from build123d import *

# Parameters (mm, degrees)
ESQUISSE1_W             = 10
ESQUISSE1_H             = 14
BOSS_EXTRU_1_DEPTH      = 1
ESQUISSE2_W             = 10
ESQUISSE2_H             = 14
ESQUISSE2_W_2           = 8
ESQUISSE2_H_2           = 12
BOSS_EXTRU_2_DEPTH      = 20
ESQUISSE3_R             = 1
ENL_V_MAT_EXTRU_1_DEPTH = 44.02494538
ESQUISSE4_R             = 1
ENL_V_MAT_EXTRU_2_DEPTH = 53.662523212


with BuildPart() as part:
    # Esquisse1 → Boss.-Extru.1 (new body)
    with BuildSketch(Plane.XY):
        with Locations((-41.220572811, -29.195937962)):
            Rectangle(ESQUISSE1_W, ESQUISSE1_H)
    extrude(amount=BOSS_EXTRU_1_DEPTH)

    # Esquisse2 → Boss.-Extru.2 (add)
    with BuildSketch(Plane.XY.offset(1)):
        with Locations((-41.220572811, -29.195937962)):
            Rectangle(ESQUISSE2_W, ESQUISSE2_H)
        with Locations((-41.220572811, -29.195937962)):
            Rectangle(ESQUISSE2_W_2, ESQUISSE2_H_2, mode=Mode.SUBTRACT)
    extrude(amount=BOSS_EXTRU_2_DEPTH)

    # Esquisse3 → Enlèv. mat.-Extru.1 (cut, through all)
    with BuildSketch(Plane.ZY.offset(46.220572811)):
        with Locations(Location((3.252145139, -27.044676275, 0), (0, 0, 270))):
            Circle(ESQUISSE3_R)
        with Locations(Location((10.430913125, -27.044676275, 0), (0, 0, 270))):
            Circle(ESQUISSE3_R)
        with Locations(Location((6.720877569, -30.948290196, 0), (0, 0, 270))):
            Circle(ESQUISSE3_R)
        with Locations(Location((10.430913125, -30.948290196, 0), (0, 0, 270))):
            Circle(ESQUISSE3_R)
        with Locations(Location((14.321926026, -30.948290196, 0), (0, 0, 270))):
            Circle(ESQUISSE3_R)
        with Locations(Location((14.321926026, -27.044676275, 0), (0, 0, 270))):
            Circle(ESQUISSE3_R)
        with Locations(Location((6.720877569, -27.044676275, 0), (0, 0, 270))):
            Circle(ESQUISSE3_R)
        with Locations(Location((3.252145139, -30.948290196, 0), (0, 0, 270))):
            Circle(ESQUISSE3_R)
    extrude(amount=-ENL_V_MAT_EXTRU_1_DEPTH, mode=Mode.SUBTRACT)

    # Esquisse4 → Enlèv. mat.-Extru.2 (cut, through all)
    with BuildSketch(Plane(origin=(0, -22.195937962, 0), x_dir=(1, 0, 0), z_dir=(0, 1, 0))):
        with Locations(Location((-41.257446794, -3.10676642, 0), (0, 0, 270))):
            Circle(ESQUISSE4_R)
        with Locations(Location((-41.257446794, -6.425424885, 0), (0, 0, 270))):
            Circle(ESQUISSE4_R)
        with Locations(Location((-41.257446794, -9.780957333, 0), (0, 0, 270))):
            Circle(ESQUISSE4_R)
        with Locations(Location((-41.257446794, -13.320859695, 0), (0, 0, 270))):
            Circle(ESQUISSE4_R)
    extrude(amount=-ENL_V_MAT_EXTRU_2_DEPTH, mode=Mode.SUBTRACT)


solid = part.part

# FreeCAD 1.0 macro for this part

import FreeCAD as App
import Part
import Sketcher
Q = App.Units.Quantity

doc = App.newDocument("Part")
body = doc.addObject("PartDesign::Body", "Body")

# Sketch on XY plane
sketch1 = body.newObject("Sketcher::SketchObject", "Sketch")
sketch1.AttachmentSupport = (doc.getObject("XY_Plane"), [""])
sketch1.MapMode = "FlatFace"
sketch1.addGeometry([
    Part.LineSegment(App.Vector(-46.220573, -22.195938, 0), App.Vector(-46.220573, -36.195938, 0)),
    Part.LineSegment(App.Vector(-46.220573, -36.195938, 0), App.Vector(-36.220573, -36.195938, 0)),
    Part.LineSegment(App.Vector(-36.220573, -36.195938, 0), App.Vector(-36.220573, -22.195938, 0)),
    Part.LineSegment(App.Vector(-36.220573, -22.195938, 0), App.Vector(-46.220573, -22.195938, 0)),
], False)
sketch1.addConstraint([
    Sketcher.Constraint("Coincident", 0, 2, 1, 1),
    Sketcher.Constraint("Coincident", 1, 2, 2, 1),
    Sketcher.Constraint("Coincident", 2, 2, 3, 1),
    Sketcher.Constraint("Coincident", 3, 2, 0, 1),
    Sketcher.Constraint("Vertical", 0),
    Sketcher.Constraint("Horizontal", 1),
    Sketcher.Constraint("Vertical", 2),
    Sketcher.Constraint("Horizontal", 3),
    Sketcher.Constraint("DistanceX", 1, 1, 1, 2, Q("10 mm")),
    Sketcher.Constraint("DistanceY", 0, 2, 0, 1, Q("14 mm")),
    Sketcher.Constraint("DistanceX", 0, 2, -1, 1, Q("46.220573 mm")),
    Sketcher.Constraint("DistanceY", 0, 2, -1, 1, Q("36.195938 mm")),
])
pad1 = body.newObject("PartDesign::Pad", "Pad")
pad1.Profile = sketch1
pad1.Length = 1

# Sketch on XY plane
sketch2 = body.newObject("Sketcher::SketchObject", "Sketch001")
sketch2.AttachmentSupport = (doc.getObject("XY_Plane"), [""])
sketch2.MapMode = "FlatFace"
sketch2.AttachmentOffset = App.Placement(App.Vector(0, 0, 1), App.Rotation())
sketch2.addGeometry([
    Part.LineSegment(App.Vector(-46.220573, -22.195938, 0), App.Vector(-46.220573, -36.195938, 0)),  # 0
    Part.LineSegment(App.Vector(-46.220573, -36.195938, 0), App.Vector(-36.220573, -36.195938, 0)),  # 1
    Part.LineSegment(App.Vector(-36.220573, -36.195938, 0), App.Vector(-36.220573, -22.195938, 0)),  # 2
    Part.LineSegment(App.Vector(-36.220573, -22.195938, 0), App.Vector(-46.220573, -22.195938, 0)),  # 3
    Part.LineSegment(App.Vector(-37.220573, -35.195938, 0), App.Vector(-45.220573, -35.195938, 0)),  # 4
    Part.LineSegment(App.Vector(-45.220573, -35.195938, 0), App.Vector(-45.220573, -23.195938, 0)),  # 5
    Part.LineSegment(App.Vector(-45.220573, -23.195938, 0), App.Vector(-37.220573, -23.195938, 0)),  # 6
    Part.LineSegment(App.Vector(-37.220573, -23.195938, 0), App.Vector(-37.220573, -35.195938, 0)),  # 7
], False)
sketch2.addConstraint([
    Sketcher.Constraint("Coincident", 0, 2, 1, 1),
    Sketcher.Constraint("Coincident", 1, 2, 2, 1),
    Sketcher.Constraint("Coincident", 2, 2, 3, 1),
    Sketcher.Constraint("Coincident", 3, 2, 0, 1),
    Sketcher.Constraint("Coincident", 4, 2, 5, 1),
    Sketcher.Constraint("Coincident", 5, 2, 6, 1),
    Sketcher.Constraint("Coincident", 6, 2, 7, 1),
    Sketcher.Constraint("Coincident", 7, 2, 4, 1),
    Sketcher.Constraint("Vertical", 0),
    Sketcher.Constraint("Horizontal", 1),
    Sketcher.Constraint("Vertical", 2),
    Sketcher.Constraint("Horizontal", 3),
    Sketcher.Constraint("Horizontal", 4),
    Sketcher.Constraint("Vertical", 5),
    Sketcher.Constraint("Horizontal", 6),
    Sketcher.Constraint("Vertical", 7),
    Sketcher.Constraint("DistanceX", 1, 1, 1, 2, Q("10 mm")),
    Sketcher.Constraint("DistanceX", 4, 2, 4, 1, Q("8 mm")),
    Sketcher.Constraint("DistanceY", 0, 2, 0, 1, Q("14 mm")),
    Sketcher.Constraint("DistanceY", 5, 1, 5, 2, Q("12 mm")),
    Sketcher.Constraint("DistanceX", 0, 2, 4, 2, Q("1 mm")),
    Sketcher.Constraint("DistanceY", 0, 2, 4, 2, Q("1 mm")),
    Sketcher.Constraint("DistanceX", 0, 2, -1, 1, Q("46.220573 mm")),
    Sketcher.Constraint("DistanceY", 0, 2, -1, 1, Q("36.195938 mm")),
])
pad2 = body.newObject("PartDesign::Pad", "Pad001")
pad2.Profile = sketch2
pad2.Length = 20

# Sketch on YZ plane
sketch3 = body.newObject("Sketcher::SketchObject", "Sketch002")
sketch3.AttachmentSupport = (doc.getObject("YZ_Plane"), [""])
sketch3.MapMode = "FlatFace"
sketch3.AttachmentOffset = App.Placement(App.Vector(0, 0, -46.220573), App.Rotation())
sketch3.addGeometry([
    Part.Circle(App.Vector(-27.044676, 3.252145, 0), App.Vector(0, 0, 1), 1),  # 0
    Part.Circle(App.Vector(-27.044676, 10.430913, 0), App.Vector(0, 0, 1), 1),  # 1
    Part.Circle(App.Vector(-30.94829, 6.720878, 0), App.Vector(0, 0, 1), 1),  # 2
    Part.Circle(App.Vector(-30.94829, 10.430913, 0), App.Vector(0, 0, 1), 1),  # 3
    Part.Circle(App.Vector(-30.94829, 14.321926, 0), App.Vector(0, 0, 1), 1),  # 4
    Part.Circle(App.Vector(-27.044676, 14.321926, 0), App.Vector(0, 0, 1), 1),  # 5
    Part.Circle(App.Vector(-27.044676, 6.720878, 0), App.Vector(0, 0, 1), 1),  # 6
    Part.Circle(App.Vector(-30.94829, 3.252145, 0), App.Vector(0, 0, 1), 1),  # 7
], False)
sketch3.addConstraint([
    Sketcher.Constraint("Equal", 0, 1),
    Sketcher.Constraint("Equal", 1, 2),
    Sketcher.Constraint("Equal", 2, 3),
    Sketcher.Constraint("Equal", 3, 4),
    Sketcher.Constraint("Equal", 4, 5),
    Sketcher.Constraint("Equal", 5, 6),
    Sketcher.Constraint("Equal", 6, 7),
    Sketcher.Constraint("Horizontal", 1, 3, 3, 3),
    Sketcher.Constraint("Horizontal", 4, 3, 5, 3),
    Sketcher.Constraint("Horizontal", 2, 3, 6, 3),
    Sketcher.Constraint("Horizontal", 0, 3, 7, 3),
    Sketcher.Constraint("Vertical", 0, 3, 1, 3),
    Sketcher.Constraint("Vertical", 2, 3, 3, 3),
    Sketcher.Constraint("Vertical", 3, 3, 4, 3),
    Sketcher.Constraint("Vertical", 1, 3, 5, 3),
    Sketcher.Constraint("Vertical", 5, 3, 6, 3),
    Sketcher.Constraint("Vertical", 4, 3, 7, 3),
    Sketcher.Constraint("Diameter", 0, Q("2 mm")),
    Sketcher.Constraint("DistanceX", 2, 3, -1, 1, Q("30.94829 mm")),
    Sketcher.Constraint("DistanceY", 2, 3, 4, 3, Q("7.601048 mm")),
    Sketcher.Constraint("DistanceY", 0, 3, 4, 3, Q("11.069781 mm")),
    Sketcher.Constraint("DistanceX", 0, 3, -1, 1, Q("27.044676 mm")),
    Sketcher.Constraint("DistanceY", -1, 1, 0, 3, Q("3.252145 mm")),
    Sketcher.Constraint("DistanceY", -1, 1, 1, 3, Q("10.430913 mm")),
])
pocket1 = body.newObject("PartDesign::Pocket", "Pocket")
pocket1.Profile = sketch3
pocket1.Type = "ThroughAll"
pocket1.Reversed = True

# Sketch on XZ plane
sketch4 = body.newObject("Sketcher::SketchObject", "Sketch003")
sketch4.AttachmentSupport = (doc.getObject("XZ_Plane"), [""])
sketch4.MapMode = "FlatFace"
sketch4.AttachmentOffset = App.Placement(App.Vector(0, 0, 22.195938), App.Rotation())
sketch4.addGeometry([
    Part.Circle(App.Vector(-41.257447, 3.106766, 0), App.Vector(0, 0, 1), 1),
    Part.Circle(App.Vector(-41.257447, 6.425425, 0), App.Vector(0, 0, 1), 1),
    Part.Circle(App.Vector(-41.257447, 9.780957, 0), App.Vector(0, 0, 1), 1),
    Part.Circle(App.Vector(-41.257447, 13.32086, 0), App.Vector(0, 0, 1), 1),
], False)
sketch4.addConstraint([
    Sketcher.Constraint("Equal", 0, 1),
    Sketcher.Constraint("Equal", 1, 2),
    Sketcher.Constraint("Equal", 2, 3),
    Sketcher.Constraint("Vertical", 0, 3, 1, 3),
    Sketcher.Constraint("Vertical", 1, 3, 2, 3),
    Sketcher.Constraint("Vertical", 2, 3, 3, 3),
    Sketcher.Constraint("Diameter", 0, Q("2 mm")),
    Sketcher.Constraint("DistanceY", -1, 1, 3, 3, Q("13.32086 mm")),
    Sketcher.Constraint("DistanceY", 0, 3, 1, 3, Q("3.318658 mm")),
    Sketcher.Constraint("DistanceY", 0, 3, 2, 3, Q("6.674191 mm")),
    Sketcher.Constraint("DistanceX", 0, 3, -1, 1, Q("41.257447 mm")),
    Sketcher.Constraint("DistanceY", -1, 1, 0, 3, Q("3.106766 mm")),
])
pocket2 = body.newObject("PartDesign::Pocket", "Pocket001")
pocket2.Profile = sketch4
pocket2.Type = "ThroughAll"
pocket2.Reversed = True

doc.recompute()
